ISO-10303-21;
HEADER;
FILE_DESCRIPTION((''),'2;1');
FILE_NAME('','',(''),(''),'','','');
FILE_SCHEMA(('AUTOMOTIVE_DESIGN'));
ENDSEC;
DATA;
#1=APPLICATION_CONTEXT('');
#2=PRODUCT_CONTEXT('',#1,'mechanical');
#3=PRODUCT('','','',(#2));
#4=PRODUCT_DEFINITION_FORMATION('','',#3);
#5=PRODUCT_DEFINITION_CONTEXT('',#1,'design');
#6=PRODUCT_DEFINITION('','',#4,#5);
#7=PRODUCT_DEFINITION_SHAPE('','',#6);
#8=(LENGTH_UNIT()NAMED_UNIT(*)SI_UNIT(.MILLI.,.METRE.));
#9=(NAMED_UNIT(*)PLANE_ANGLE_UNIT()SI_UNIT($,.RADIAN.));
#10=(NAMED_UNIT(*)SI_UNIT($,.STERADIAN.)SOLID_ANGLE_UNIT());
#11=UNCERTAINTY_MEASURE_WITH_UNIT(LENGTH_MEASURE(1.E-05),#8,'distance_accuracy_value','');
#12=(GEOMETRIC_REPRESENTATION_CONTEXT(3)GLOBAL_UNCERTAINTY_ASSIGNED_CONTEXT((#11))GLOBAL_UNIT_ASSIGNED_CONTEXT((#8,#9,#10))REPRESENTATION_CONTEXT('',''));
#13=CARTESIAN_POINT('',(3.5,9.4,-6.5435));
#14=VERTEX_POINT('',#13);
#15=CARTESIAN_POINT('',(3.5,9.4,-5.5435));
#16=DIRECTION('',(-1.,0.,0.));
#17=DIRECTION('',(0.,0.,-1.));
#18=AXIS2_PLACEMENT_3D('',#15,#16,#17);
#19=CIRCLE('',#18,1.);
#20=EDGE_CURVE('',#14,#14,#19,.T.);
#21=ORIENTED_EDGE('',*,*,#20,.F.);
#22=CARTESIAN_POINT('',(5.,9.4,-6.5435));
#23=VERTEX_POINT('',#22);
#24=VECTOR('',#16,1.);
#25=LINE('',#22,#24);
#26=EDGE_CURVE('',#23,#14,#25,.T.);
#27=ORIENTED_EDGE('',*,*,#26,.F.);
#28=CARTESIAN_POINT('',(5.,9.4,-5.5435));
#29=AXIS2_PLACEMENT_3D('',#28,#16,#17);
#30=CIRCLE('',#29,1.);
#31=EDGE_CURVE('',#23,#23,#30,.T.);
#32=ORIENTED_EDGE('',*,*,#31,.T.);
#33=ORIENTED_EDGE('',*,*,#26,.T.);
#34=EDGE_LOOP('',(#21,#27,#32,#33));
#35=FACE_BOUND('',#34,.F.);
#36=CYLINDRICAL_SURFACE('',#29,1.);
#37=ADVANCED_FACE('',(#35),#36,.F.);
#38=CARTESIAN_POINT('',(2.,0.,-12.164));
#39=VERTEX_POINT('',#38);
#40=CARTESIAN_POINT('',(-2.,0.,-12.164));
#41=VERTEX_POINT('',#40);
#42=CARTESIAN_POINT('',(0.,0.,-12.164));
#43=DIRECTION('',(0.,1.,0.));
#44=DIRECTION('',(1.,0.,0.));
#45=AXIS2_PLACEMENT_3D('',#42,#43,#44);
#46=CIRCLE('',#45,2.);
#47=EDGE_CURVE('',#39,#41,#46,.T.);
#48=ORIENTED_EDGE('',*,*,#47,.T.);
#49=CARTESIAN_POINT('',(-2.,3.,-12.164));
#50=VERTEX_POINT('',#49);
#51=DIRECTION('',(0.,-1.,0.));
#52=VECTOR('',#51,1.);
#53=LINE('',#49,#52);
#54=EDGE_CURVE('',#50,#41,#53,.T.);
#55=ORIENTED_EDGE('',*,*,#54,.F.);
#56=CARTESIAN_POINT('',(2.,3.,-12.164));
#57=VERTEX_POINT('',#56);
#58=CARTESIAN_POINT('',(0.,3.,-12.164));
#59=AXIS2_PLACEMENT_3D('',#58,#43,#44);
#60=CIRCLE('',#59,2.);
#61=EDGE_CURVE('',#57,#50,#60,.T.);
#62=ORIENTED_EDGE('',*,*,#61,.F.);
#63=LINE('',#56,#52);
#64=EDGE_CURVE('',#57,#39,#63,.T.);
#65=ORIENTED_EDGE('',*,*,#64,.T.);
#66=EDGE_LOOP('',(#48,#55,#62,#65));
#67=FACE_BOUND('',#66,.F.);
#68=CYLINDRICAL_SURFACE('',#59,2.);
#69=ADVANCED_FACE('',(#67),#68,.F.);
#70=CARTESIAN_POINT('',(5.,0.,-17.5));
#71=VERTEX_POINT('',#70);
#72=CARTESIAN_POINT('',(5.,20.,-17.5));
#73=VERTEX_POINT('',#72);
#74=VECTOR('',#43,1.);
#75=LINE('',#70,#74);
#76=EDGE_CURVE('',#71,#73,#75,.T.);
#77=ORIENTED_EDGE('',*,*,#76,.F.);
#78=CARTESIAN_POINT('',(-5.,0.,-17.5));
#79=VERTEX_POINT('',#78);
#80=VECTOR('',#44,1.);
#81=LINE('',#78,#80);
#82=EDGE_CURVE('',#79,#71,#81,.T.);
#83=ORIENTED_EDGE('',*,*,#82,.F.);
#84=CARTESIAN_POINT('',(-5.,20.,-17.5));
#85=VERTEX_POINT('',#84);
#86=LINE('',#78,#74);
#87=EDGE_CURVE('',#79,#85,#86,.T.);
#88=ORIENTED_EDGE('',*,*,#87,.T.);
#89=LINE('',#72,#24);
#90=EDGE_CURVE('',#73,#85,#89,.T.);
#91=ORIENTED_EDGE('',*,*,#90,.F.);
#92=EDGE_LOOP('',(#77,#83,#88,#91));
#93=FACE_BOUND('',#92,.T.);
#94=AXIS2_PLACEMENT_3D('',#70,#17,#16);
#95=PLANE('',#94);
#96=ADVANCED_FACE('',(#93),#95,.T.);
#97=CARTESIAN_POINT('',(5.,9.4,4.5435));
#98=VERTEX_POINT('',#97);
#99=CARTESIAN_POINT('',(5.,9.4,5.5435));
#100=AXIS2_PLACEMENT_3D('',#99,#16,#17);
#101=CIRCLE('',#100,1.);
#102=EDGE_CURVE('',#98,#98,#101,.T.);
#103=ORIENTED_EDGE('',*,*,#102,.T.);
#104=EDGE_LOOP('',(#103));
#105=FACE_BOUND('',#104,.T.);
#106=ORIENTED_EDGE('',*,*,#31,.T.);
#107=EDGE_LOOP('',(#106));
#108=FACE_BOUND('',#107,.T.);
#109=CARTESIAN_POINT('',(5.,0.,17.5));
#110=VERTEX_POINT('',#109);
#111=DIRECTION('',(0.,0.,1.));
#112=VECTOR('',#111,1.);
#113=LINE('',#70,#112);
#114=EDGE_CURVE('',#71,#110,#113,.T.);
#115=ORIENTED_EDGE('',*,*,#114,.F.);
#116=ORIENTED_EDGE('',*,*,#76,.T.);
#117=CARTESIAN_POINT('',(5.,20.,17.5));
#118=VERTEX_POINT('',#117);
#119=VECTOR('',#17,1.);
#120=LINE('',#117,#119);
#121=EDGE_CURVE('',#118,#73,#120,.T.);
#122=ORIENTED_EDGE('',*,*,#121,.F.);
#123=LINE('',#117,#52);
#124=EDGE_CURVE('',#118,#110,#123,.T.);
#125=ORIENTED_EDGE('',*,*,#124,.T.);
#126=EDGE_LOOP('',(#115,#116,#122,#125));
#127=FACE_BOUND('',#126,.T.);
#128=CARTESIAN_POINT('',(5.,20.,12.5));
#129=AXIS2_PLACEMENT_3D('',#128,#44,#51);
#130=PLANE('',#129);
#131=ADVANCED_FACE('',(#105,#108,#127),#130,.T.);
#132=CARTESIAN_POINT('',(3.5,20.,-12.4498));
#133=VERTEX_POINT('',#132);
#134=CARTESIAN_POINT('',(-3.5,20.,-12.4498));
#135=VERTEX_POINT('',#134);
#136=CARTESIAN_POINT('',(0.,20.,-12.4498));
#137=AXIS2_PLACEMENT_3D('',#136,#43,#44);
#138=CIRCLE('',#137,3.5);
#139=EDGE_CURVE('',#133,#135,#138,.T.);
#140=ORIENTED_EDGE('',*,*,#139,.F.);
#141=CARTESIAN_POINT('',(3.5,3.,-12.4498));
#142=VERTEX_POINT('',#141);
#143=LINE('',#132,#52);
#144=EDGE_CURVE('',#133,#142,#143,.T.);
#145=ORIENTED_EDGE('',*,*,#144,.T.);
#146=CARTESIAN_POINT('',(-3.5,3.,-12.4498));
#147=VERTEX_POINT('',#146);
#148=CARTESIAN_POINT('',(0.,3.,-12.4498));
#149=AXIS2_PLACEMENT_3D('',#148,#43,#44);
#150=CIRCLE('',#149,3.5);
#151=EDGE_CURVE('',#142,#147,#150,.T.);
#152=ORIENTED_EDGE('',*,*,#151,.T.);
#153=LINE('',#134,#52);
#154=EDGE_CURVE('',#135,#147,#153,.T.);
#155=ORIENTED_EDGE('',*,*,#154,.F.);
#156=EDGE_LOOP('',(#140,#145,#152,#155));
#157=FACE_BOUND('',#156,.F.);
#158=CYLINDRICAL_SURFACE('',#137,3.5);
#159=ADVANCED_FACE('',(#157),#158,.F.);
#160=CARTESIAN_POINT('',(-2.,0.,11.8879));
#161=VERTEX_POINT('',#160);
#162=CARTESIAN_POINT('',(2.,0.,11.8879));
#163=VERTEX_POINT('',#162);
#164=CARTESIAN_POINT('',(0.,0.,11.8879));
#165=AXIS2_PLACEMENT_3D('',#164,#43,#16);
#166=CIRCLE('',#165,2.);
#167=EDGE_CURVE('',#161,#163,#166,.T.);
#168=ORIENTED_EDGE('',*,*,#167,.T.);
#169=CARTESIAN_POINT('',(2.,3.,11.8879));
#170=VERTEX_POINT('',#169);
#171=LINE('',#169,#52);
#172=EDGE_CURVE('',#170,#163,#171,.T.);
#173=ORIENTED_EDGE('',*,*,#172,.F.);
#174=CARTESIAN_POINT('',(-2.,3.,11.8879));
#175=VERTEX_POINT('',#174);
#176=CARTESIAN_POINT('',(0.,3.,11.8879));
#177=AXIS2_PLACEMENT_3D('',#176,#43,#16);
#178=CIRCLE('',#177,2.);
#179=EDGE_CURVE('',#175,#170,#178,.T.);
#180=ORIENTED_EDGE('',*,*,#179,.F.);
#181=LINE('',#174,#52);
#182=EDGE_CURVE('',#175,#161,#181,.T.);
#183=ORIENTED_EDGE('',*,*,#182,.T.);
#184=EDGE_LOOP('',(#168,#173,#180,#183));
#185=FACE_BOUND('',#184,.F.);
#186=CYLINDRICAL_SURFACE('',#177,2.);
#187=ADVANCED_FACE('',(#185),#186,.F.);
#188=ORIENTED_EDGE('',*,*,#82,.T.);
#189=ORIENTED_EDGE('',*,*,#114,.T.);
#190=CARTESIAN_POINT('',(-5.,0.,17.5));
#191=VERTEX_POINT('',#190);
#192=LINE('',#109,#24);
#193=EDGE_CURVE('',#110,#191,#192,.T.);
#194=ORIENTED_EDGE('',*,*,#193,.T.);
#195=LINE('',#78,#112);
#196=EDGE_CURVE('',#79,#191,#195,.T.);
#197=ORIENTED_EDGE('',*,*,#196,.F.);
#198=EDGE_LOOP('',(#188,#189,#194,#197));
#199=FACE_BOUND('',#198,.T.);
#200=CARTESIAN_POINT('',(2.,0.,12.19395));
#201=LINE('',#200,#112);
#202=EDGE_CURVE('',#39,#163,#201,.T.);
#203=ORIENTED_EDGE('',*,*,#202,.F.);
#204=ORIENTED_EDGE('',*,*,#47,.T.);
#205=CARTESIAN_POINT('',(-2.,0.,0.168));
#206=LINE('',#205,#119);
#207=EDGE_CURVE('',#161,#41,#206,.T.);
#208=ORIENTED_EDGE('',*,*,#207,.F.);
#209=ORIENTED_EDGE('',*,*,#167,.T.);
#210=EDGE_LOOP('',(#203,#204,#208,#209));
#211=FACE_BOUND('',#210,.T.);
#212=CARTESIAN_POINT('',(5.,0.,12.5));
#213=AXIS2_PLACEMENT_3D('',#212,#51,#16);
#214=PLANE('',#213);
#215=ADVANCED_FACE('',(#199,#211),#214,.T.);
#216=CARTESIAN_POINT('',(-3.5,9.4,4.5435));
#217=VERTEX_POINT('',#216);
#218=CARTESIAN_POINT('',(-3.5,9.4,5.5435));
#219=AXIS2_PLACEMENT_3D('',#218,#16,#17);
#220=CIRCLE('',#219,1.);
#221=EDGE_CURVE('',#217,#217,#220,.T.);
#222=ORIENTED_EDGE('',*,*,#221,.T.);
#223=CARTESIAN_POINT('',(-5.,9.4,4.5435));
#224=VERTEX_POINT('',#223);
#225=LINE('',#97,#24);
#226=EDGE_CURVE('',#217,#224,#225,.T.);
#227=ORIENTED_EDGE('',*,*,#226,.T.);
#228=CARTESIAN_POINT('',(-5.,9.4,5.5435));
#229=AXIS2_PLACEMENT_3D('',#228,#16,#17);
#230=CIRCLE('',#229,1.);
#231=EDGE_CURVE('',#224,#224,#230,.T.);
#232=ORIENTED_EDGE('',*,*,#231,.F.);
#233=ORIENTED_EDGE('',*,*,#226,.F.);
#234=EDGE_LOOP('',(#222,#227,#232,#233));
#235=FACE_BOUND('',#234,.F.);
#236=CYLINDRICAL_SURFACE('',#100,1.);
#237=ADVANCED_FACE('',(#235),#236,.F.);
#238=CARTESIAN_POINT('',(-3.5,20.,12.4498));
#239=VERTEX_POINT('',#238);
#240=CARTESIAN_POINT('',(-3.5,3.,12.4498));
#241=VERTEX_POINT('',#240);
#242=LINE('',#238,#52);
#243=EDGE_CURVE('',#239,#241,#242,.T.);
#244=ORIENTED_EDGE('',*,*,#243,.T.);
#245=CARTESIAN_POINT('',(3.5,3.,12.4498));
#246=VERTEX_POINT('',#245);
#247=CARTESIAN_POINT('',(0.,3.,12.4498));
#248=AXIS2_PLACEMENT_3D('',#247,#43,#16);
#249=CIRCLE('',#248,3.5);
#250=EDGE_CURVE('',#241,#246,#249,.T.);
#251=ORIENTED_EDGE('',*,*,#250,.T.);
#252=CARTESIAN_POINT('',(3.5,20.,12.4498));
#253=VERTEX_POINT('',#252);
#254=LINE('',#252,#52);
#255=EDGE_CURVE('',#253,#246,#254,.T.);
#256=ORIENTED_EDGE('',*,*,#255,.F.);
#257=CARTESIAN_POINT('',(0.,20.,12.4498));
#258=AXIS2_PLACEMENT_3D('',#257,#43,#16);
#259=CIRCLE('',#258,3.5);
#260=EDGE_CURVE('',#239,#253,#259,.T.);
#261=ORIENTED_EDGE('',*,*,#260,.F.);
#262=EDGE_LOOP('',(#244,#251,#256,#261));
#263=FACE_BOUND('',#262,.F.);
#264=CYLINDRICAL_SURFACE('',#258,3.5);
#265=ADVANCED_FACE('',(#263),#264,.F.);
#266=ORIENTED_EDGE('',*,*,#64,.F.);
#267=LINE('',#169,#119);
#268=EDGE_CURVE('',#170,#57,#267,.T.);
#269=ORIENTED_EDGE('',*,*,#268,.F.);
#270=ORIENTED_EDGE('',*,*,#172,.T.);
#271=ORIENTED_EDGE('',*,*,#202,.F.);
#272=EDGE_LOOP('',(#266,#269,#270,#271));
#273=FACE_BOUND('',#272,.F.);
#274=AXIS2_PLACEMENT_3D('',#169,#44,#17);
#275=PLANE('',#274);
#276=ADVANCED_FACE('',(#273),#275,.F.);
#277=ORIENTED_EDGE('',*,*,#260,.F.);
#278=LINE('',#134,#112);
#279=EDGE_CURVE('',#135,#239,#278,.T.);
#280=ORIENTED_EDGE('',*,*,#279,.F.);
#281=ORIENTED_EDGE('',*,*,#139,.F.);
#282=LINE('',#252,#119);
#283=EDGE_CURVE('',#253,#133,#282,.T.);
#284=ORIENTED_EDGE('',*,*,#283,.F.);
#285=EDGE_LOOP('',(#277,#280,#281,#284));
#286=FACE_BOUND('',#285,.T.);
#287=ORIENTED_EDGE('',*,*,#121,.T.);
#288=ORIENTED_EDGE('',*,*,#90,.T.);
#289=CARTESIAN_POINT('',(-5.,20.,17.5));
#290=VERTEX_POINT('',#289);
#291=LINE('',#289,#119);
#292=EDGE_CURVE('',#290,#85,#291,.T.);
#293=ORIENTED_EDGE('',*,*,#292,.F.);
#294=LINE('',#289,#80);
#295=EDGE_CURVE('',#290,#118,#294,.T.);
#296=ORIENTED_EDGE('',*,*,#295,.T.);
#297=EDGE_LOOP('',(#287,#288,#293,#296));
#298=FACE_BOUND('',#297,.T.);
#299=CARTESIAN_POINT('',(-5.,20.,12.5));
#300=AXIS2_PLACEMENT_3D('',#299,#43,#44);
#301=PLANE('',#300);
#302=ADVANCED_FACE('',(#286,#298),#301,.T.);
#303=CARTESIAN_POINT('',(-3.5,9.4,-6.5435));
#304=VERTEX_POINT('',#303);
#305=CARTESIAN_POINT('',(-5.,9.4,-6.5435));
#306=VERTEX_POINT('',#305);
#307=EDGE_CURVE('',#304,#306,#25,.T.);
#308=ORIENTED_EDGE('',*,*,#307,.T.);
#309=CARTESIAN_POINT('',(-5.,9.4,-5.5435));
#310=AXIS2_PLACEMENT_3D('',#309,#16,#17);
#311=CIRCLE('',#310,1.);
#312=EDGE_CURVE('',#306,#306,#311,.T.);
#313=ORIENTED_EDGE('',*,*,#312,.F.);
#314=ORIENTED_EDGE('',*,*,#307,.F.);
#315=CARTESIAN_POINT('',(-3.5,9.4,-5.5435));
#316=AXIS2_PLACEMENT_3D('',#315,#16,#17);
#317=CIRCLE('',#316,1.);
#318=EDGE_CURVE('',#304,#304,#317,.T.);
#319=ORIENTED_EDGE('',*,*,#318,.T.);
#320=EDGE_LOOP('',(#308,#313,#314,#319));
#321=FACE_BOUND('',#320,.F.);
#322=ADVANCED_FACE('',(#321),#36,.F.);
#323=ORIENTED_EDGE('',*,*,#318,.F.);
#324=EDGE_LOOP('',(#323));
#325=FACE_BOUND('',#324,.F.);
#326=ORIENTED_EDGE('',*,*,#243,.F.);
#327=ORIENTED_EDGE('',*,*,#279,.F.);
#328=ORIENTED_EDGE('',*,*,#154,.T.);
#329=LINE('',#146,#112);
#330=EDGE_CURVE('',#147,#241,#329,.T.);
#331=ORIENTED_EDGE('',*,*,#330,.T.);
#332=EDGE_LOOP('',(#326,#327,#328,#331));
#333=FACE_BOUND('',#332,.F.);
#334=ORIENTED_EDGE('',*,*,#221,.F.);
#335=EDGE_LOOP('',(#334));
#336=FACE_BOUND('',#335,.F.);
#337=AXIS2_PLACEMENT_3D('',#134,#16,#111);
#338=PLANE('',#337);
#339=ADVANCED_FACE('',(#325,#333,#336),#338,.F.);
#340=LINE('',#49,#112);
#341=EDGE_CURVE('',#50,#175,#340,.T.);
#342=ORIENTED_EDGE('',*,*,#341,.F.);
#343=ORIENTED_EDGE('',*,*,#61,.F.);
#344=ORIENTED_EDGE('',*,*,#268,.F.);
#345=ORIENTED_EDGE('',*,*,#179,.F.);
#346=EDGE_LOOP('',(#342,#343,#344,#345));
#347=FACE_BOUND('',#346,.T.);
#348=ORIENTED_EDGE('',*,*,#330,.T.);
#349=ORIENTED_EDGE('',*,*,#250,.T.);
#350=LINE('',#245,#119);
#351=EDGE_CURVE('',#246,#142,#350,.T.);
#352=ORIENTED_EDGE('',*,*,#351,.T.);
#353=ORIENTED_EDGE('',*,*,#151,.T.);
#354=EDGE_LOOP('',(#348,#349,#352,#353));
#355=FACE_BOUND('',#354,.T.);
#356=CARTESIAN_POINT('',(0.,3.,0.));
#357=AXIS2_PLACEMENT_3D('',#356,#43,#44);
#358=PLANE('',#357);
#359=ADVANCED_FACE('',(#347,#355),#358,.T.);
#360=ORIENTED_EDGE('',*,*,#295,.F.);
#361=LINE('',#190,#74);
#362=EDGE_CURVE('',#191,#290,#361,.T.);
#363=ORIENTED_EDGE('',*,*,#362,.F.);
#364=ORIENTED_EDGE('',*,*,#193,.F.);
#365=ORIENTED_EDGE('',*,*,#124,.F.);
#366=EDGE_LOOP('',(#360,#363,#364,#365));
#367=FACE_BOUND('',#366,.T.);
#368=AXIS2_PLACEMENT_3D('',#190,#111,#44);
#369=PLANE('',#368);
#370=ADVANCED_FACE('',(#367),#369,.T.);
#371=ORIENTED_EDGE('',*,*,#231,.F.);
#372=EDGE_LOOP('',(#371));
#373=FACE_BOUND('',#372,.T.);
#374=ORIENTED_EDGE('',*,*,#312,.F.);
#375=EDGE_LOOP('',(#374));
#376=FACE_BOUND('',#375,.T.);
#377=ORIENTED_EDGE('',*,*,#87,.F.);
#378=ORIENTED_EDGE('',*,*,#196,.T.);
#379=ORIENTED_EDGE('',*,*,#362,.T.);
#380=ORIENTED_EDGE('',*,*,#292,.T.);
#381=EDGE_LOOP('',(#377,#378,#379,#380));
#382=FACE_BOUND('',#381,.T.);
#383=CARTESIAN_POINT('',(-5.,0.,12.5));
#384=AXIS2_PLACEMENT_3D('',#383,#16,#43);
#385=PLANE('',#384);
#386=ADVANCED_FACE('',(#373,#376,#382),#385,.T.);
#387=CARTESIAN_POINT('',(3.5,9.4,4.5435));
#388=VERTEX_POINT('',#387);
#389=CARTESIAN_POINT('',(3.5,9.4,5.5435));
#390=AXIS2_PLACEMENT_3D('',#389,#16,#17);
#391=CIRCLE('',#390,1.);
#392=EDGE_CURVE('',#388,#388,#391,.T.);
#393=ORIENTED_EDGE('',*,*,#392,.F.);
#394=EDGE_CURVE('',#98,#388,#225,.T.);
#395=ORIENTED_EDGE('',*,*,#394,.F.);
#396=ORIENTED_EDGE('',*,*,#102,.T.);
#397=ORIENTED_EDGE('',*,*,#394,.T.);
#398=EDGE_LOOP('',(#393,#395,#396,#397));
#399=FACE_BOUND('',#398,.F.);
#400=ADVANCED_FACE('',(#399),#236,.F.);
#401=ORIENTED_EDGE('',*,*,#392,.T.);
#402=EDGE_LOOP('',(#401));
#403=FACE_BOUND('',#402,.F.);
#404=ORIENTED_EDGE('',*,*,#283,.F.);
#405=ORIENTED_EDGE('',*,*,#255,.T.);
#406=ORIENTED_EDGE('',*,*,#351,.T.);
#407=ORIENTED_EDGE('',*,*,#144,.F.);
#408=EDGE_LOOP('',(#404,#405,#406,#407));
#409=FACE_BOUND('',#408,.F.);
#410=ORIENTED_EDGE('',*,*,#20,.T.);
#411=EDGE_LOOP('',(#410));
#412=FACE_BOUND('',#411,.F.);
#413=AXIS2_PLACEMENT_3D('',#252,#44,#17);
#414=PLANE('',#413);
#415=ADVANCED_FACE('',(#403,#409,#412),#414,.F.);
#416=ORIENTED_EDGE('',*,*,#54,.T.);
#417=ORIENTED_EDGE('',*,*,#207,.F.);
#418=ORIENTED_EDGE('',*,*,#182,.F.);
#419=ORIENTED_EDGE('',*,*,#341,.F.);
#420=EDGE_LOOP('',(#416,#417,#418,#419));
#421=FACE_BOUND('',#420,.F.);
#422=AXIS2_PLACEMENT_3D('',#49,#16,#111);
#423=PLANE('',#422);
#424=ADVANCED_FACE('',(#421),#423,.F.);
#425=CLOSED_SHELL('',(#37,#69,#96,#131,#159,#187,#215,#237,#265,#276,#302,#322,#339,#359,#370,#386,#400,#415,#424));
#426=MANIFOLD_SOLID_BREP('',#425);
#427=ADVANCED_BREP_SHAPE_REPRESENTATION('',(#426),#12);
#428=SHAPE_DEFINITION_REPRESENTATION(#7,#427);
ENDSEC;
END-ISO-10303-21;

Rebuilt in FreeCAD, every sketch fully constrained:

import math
import FreeCAD as App
import Part
import Sketcher

V = App.Vector


def add_polygon(sketch, points):
    """Adds a closed chain of lines whose ends are joined by coincident constraints."""
    first, n = sketch.GeometryCount, len(points)
    for a, b in zip(points, points[1:] + points[:1]):
        sketch.addGeometry(Part.LineSegment(App.Vector(*a, 0), App.Vector(*b, 0)), False)
    for i in range(n):
        sketch.addConstraint(Sketcher.Constraint("Coincident", first + i, 2, first + (i + 1) % n, 1))

doc = App.newDocument("Part")
body = doc.addObject("PartDesign::Body", "Body")

sketch1 = doc.addObject("Sketcher::SketchObject", "Sketch")
body.addObject(sketch1)
sketch1.AttachmentSupport = (doc.XZ_Plane, [""])
sketch1.MapMode = "FlatFace"
add_polygon(sketch1, [(5, -12), (-5, -12), (-5, 12), (5, 12)])
sketch1.addConstraint([
    Sketcher.Constraint("Horizontal", 0),
    Sketcher.Constraint("Vertical", 1),
    Sketcher.Constraint("Horizontal", 2),
    Sketcher.Constraint("Vertical", 3),
    Sketcher.Constraint("Symmetric", 0, 2, 2, 2, -1, 1),
    Sketcher.Constraint("DistanceX", 0, 2, 0, 1, 10.0),
    Sketcher.Constraint("DistanceY", 1, 1, 1, 2, 25.0),
])
pad1 = doc.addObject("PartDesign::Pad", "Pad")
body.addObject(pad1)
pad1.Profile = sketch1
pad1.Length = 20
pad1.Reversed = True

sketch2 = doc.addObject("Sketcher::SketchObject", "Sketch001")
body.addObject(sketch2)
sketch2.AttachmentSupport = (doc.YZ_Plane, [""])
sketch2.MapMode = "FlatFace"
sketch2.AttachmentOffset = App.Placement(V(0, 0, 5), App.Rotation())
sketch2.addGeometry([
    Part.Circle(V(9.4, 5.5, 0), V(0, 0, 1), 1),
    Part.Circle(V(9.4, -5.5, 0), V(0, 0, 1), 1),
], False)
sketch2.addConstraint([
    Sketcher.Constraint("Equal", 0, 1),
    Sketcher.Constraint("Symmetric", 0, 3, 1, 3, -1),
    Sketcher.Constraint("Diameter", 0, 2.0),
    Sketcher.Constraint("DistanceX", -1, 1, 0, 3, 9.4),
    Sketcher.Constraint("DistanceY", 1, 3, 0, 3, 11.087),
])
doc.recompute()
hole = doc.addObject("PartDesign::Hole", "Hole")
body.addObject(hole)
hole.Profile = sketch2
hole.ThreadType = "None"
hole.Diameter = 2
hole.DepthType = "Dimension"
hole.Depth = 25
hole.DrillPoint = "Flat"

sketch3 = doc.addObject("Sketcher::SketchObject", "Sketch002")
body.addObject(sketch3)
sketch3.AttachmentSupport = (doc.XY_Plane, [""])
sketch3.MapMode = "FlatFace"
sketch3.AttachmentOffset = App.Placement(V(0, 0, -12.5), App.Rotation())
add_polygon(sketch3, [(5, 20), (5, 0), (-5, 0), (-5, 20)])
sketch3.addConstraint([
    Sketcher.Constraint("Vertical", 0),
    Sketcher.Constraint("Horizontal", 1),
    Sketcher.Constraint("Vertical", 2),
    Sketcher.Constraint("Horizontal", 3),
    Sketcher.Constraint("Symmetric", 0, 2, 1, 2, -1, 1),
    Sketcher.Constraint("DistanceX", 1, 2, 1, 1, 10.0),
    Sketcher.Constraint("DistanceY", 0, 2, 0, 1, 20.0),
])
pad2 = doc.addObject("PartDesign::Pad", "Pad001")
body.addObject(pad2)
pad2.Profile = sketch3
pad2.Length = 5
pad2.Reversed = True

sketch4 = doc.addObject("Sketcher::SketchObject", "Sketch003")
body.addObject(sketch4)
sketch4.AttachmentSupport = (doc.XY_Plane, [""])
sketch4.MapMode = "FlatFace"
sketch4.AttachmentOffset = App.Placement(V(0, 0, 12.5), App.Rotation())
add_polygon(sketch4, [(-5, 20), (-5, 0), (5, 0), (5, 20)])
sketch4.addConstraint([
    Sketcher.Constraint("Vertical", 0),
    Sketcher.Constraint("Horizontal", 1),
    Sketcher.Constraint("Vertical", 2),
    Sketcher.Constraint("Horizontal", 3),
    Sketcher.Constraint("Symmetric", 0, 2, 1, 2, -1, 1),
    Sketcher.Constraint("DistanceX", 1, 1, 1, 2, 10.0),
    Sketcher.Constraint("DistanceY", 0, 2, 0, 1, 20.0),
])
pad3 = doc.addObject("PartDesign::Pad", "Pad002")
body.addObject(pad3)
pad3.Profile = sketch4
pad3.Length = 5

sketch5 = doc.addObject("Sketcher::SketchObject", "Sketch004")
body.addObject(sketch5)
sketch5.AttachmentSupport = (doc.XZ_Plane, [""])
sketch5.MapMode = "FlatFace"
sketch5.AttachmentOffset = App.Placement(V(0, 0, -20), App.Rotation())
sketch5.addGeometry([
    Part.ArcOfCircle(Part.Circle(V(0, 12.4, 0), V(0, 0, 1), 3.5), math.radians(0), math.radians(180)),
    Part.LineSegment(V(3.5, 12.4, 0), V(3.5, -12.4, 0)),
    Part.ArcOfCircle(Part.Circle(V(0, -12.4, 0), V(0, 0, 1), 3.5), math.radians(180), math.radians(360)),
    Part.LineSegment(V(-3.5, -12.4, 0), V(-3.5, 12.4, 0)),
], False)
sketch5.addConstraint([
    Sketcher.Constraint("Tangent", 0, 1, 1, 1),
    Sketcher.Constraint("Tangent", 1, 2, 2, 2),
    Sketcher.Constraint("Tangent", 2, 1, 3, 1),
    Sketcher.Constraint("Tangent", 3, 2, 0, 2),
    Sketcher.Constraint("Vertical", 1),
    Sketcher.Constraint("Vertical", 3),
    Sketcher.Constraint("Symmetric", 0, 3, 2, 3, -1, 1),
    Sketcher.Constraint("Radius", 0, 3.5),
    Sketcher.Constraint("DistanceY", 1, 2, 1, 1, 24.8996),
])
pocket1 = doc.addObject("PartDesign::Pocket", "Pocket")
body.addObject(pocket1)
pocket1.Profile = sketch5
pocket1.Length = 17
pocket1.Reversed = True

sketch6 = doc.addObject("Sketcher::SketchObject", "Sketch005")
body.addObject(sketch6)
sketch6.AttachmentSupport = (doc.XZ_Plane, [""])
sketch6.MapMode = "FlatFace"
sketch6.AttachmentOffset = App.Placement(V(0, 0, -3), App.Rotation())
sketch6.addGeometry([
    Part.ArcOfCircle(Part.Circle(V(0, 11.9, 0), V(0, 0, 1), 2), math.radians(0), math.radians(180)),
    Part.LineSegment(V(2, 11.9, 0), V(2, -12.2, 0)),
    Part.ArcOfCircle(Part.Circle(V(0, -12.2, 0), V(0, 0, 1), 2), math.radians(180), math.radians(360)),
    Part.LineSegment(V(-2, -12.2, 0), V(-2, 11.9, 0)),
], False)
sketch6.addConstraint([
    Sketcher.Constraint("Tangent", 0, 1, 1, 1),
    Sketcher.Constraint("Tangent", 1, 2, 2, 2),
    Sketcher.Constraint("Tangent", 2, 1, 3, 1),
    Sketcher.Constraint("Tangent", 3, 2, 0, 2),
    Sketcher.Constraint("Vertical", 1),
    Sketcher.Constraint("Vertical", 3),
    Sketcher.Constraint("PointOnObject", 0, 3, -2),
    Sketcher.Constraint("Radius", 0, 2.0),
    Sketcher.Constraint("DistanceY", 1, 2, 1, 1, 24.052),
    Sketcher.Constraint("DistanceY", -1, 1, 0, 3, 11.888),
])
pocket2 = doc.addObject("PartDesign::Pocket", "Pocket001")
body.addObject(pocket2)
pocket2.Profile = sketch6
pocket2.Length = 15
pocket2.Reversed = True

doc.recompute()
